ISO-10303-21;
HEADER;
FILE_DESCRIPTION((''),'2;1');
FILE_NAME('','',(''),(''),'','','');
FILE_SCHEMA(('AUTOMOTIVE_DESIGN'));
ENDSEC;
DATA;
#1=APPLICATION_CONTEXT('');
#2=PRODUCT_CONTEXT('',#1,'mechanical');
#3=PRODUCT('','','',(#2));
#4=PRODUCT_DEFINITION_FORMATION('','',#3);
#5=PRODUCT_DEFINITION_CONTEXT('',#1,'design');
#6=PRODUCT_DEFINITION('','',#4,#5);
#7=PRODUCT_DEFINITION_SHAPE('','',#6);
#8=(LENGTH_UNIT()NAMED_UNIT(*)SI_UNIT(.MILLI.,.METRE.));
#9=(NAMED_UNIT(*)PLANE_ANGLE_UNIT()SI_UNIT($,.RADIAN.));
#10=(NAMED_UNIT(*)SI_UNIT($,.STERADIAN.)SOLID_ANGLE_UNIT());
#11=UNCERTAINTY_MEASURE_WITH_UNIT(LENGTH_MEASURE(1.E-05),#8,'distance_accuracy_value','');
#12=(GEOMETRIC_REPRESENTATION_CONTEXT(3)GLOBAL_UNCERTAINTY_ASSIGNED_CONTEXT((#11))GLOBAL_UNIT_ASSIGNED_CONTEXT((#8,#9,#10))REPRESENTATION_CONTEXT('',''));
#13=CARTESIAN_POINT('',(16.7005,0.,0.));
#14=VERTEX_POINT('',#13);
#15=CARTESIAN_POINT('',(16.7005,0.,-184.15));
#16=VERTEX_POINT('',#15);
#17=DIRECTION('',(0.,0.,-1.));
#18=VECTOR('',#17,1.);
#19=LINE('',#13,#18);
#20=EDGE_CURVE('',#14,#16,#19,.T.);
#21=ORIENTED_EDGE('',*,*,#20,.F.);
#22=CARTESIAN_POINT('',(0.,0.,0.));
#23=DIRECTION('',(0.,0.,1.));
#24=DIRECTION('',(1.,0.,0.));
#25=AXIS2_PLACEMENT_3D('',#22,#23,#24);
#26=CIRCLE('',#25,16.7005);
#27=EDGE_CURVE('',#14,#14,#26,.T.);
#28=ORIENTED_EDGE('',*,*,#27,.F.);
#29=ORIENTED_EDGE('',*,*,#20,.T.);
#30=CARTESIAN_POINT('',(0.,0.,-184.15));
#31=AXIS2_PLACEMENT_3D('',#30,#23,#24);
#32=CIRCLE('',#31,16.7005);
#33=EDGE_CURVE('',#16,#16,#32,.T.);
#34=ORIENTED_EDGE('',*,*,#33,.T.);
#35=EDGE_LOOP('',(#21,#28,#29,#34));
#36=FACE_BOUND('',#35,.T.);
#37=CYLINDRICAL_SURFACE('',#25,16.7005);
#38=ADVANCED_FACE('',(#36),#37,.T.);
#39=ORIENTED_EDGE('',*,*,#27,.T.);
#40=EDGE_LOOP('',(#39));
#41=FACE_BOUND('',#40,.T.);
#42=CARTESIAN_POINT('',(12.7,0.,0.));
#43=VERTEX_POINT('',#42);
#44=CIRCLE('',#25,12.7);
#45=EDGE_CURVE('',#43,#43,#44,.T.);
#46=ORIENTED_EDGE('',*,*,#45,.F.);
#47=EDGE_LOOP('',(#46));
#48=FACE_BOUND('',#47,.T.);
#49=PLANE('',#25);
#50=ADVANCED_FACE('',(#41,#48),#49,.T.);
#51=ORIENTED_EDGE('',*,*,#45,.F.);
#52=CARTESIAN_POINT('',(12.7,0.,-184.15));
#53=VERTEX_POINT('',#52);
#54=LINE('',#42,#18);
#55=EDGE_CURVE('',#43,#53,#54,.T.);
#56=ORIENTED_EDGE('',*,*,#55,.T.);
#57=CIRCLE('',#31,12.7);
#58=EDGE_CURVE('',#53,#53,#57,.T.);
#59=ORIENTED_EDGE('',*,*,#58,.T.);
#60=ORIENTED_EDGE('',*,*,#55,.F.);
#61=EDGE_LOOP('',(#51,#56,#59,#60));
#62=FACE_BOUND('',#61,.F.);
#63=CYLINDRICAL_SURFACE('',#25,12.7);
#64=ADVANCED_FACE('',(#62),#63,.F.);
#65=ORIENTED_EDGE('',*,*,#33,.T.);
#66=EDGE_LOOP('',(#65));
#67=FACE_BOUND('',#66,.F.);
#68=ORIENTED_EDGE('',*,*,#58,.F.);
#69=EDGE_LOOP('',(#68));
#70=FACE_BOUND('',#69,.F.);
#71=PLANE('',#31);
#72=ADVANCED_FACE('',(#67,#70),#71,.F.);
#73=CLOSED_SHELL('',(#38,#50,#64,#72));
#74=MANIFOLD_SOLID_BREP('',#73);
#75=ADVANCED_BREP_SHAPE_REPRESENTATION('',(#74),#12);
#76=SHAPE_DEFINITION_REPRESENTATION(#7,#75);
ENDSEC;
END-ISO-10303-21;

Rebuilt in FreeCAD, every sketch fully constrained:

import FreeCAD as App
import Part
import Sketcher
Q = App.Units.Quantity

doc = App.newDocument("Part")
body = doc.addObject("PartDesign::Body", "Body")

# Sketch on XY plane
sketch1 = body.newObject("Sketcher::SketchObject", "Sketch")
sketch1.AttachmentSupport = (doc.getObject("XY_Plane"), [""])
sketch1.MapMode = "FlatFace"
sketch1.addGeometry([
    Part.Circle(App.Vector(0, 0, 0), App.Vector(0, 0, 1), 17),
    Part.Circle(App.Vector(0, 0, 0), App.Vector(0, 0, 1), 13),
], False)
sketch1.addConstraint([
    Sketcher.Constraint("Coincident", 0, 3, -1, 1),
    Sketcher.Constraint("Coincident", 1, 3, -1, 1),
    Sketcher.Constraint("Diameter", 1, Q("1 in")),
    Sketcher.Constraint("Diameter", 0, Q("1.315 in")),
])
pad1 = body.newObject("PartDesign::Pad", "Pad")
pad1.Profile = sketch1
pad1.Length = Q("7.25 in")
pad1.Reversed = True

doc.recompute()
